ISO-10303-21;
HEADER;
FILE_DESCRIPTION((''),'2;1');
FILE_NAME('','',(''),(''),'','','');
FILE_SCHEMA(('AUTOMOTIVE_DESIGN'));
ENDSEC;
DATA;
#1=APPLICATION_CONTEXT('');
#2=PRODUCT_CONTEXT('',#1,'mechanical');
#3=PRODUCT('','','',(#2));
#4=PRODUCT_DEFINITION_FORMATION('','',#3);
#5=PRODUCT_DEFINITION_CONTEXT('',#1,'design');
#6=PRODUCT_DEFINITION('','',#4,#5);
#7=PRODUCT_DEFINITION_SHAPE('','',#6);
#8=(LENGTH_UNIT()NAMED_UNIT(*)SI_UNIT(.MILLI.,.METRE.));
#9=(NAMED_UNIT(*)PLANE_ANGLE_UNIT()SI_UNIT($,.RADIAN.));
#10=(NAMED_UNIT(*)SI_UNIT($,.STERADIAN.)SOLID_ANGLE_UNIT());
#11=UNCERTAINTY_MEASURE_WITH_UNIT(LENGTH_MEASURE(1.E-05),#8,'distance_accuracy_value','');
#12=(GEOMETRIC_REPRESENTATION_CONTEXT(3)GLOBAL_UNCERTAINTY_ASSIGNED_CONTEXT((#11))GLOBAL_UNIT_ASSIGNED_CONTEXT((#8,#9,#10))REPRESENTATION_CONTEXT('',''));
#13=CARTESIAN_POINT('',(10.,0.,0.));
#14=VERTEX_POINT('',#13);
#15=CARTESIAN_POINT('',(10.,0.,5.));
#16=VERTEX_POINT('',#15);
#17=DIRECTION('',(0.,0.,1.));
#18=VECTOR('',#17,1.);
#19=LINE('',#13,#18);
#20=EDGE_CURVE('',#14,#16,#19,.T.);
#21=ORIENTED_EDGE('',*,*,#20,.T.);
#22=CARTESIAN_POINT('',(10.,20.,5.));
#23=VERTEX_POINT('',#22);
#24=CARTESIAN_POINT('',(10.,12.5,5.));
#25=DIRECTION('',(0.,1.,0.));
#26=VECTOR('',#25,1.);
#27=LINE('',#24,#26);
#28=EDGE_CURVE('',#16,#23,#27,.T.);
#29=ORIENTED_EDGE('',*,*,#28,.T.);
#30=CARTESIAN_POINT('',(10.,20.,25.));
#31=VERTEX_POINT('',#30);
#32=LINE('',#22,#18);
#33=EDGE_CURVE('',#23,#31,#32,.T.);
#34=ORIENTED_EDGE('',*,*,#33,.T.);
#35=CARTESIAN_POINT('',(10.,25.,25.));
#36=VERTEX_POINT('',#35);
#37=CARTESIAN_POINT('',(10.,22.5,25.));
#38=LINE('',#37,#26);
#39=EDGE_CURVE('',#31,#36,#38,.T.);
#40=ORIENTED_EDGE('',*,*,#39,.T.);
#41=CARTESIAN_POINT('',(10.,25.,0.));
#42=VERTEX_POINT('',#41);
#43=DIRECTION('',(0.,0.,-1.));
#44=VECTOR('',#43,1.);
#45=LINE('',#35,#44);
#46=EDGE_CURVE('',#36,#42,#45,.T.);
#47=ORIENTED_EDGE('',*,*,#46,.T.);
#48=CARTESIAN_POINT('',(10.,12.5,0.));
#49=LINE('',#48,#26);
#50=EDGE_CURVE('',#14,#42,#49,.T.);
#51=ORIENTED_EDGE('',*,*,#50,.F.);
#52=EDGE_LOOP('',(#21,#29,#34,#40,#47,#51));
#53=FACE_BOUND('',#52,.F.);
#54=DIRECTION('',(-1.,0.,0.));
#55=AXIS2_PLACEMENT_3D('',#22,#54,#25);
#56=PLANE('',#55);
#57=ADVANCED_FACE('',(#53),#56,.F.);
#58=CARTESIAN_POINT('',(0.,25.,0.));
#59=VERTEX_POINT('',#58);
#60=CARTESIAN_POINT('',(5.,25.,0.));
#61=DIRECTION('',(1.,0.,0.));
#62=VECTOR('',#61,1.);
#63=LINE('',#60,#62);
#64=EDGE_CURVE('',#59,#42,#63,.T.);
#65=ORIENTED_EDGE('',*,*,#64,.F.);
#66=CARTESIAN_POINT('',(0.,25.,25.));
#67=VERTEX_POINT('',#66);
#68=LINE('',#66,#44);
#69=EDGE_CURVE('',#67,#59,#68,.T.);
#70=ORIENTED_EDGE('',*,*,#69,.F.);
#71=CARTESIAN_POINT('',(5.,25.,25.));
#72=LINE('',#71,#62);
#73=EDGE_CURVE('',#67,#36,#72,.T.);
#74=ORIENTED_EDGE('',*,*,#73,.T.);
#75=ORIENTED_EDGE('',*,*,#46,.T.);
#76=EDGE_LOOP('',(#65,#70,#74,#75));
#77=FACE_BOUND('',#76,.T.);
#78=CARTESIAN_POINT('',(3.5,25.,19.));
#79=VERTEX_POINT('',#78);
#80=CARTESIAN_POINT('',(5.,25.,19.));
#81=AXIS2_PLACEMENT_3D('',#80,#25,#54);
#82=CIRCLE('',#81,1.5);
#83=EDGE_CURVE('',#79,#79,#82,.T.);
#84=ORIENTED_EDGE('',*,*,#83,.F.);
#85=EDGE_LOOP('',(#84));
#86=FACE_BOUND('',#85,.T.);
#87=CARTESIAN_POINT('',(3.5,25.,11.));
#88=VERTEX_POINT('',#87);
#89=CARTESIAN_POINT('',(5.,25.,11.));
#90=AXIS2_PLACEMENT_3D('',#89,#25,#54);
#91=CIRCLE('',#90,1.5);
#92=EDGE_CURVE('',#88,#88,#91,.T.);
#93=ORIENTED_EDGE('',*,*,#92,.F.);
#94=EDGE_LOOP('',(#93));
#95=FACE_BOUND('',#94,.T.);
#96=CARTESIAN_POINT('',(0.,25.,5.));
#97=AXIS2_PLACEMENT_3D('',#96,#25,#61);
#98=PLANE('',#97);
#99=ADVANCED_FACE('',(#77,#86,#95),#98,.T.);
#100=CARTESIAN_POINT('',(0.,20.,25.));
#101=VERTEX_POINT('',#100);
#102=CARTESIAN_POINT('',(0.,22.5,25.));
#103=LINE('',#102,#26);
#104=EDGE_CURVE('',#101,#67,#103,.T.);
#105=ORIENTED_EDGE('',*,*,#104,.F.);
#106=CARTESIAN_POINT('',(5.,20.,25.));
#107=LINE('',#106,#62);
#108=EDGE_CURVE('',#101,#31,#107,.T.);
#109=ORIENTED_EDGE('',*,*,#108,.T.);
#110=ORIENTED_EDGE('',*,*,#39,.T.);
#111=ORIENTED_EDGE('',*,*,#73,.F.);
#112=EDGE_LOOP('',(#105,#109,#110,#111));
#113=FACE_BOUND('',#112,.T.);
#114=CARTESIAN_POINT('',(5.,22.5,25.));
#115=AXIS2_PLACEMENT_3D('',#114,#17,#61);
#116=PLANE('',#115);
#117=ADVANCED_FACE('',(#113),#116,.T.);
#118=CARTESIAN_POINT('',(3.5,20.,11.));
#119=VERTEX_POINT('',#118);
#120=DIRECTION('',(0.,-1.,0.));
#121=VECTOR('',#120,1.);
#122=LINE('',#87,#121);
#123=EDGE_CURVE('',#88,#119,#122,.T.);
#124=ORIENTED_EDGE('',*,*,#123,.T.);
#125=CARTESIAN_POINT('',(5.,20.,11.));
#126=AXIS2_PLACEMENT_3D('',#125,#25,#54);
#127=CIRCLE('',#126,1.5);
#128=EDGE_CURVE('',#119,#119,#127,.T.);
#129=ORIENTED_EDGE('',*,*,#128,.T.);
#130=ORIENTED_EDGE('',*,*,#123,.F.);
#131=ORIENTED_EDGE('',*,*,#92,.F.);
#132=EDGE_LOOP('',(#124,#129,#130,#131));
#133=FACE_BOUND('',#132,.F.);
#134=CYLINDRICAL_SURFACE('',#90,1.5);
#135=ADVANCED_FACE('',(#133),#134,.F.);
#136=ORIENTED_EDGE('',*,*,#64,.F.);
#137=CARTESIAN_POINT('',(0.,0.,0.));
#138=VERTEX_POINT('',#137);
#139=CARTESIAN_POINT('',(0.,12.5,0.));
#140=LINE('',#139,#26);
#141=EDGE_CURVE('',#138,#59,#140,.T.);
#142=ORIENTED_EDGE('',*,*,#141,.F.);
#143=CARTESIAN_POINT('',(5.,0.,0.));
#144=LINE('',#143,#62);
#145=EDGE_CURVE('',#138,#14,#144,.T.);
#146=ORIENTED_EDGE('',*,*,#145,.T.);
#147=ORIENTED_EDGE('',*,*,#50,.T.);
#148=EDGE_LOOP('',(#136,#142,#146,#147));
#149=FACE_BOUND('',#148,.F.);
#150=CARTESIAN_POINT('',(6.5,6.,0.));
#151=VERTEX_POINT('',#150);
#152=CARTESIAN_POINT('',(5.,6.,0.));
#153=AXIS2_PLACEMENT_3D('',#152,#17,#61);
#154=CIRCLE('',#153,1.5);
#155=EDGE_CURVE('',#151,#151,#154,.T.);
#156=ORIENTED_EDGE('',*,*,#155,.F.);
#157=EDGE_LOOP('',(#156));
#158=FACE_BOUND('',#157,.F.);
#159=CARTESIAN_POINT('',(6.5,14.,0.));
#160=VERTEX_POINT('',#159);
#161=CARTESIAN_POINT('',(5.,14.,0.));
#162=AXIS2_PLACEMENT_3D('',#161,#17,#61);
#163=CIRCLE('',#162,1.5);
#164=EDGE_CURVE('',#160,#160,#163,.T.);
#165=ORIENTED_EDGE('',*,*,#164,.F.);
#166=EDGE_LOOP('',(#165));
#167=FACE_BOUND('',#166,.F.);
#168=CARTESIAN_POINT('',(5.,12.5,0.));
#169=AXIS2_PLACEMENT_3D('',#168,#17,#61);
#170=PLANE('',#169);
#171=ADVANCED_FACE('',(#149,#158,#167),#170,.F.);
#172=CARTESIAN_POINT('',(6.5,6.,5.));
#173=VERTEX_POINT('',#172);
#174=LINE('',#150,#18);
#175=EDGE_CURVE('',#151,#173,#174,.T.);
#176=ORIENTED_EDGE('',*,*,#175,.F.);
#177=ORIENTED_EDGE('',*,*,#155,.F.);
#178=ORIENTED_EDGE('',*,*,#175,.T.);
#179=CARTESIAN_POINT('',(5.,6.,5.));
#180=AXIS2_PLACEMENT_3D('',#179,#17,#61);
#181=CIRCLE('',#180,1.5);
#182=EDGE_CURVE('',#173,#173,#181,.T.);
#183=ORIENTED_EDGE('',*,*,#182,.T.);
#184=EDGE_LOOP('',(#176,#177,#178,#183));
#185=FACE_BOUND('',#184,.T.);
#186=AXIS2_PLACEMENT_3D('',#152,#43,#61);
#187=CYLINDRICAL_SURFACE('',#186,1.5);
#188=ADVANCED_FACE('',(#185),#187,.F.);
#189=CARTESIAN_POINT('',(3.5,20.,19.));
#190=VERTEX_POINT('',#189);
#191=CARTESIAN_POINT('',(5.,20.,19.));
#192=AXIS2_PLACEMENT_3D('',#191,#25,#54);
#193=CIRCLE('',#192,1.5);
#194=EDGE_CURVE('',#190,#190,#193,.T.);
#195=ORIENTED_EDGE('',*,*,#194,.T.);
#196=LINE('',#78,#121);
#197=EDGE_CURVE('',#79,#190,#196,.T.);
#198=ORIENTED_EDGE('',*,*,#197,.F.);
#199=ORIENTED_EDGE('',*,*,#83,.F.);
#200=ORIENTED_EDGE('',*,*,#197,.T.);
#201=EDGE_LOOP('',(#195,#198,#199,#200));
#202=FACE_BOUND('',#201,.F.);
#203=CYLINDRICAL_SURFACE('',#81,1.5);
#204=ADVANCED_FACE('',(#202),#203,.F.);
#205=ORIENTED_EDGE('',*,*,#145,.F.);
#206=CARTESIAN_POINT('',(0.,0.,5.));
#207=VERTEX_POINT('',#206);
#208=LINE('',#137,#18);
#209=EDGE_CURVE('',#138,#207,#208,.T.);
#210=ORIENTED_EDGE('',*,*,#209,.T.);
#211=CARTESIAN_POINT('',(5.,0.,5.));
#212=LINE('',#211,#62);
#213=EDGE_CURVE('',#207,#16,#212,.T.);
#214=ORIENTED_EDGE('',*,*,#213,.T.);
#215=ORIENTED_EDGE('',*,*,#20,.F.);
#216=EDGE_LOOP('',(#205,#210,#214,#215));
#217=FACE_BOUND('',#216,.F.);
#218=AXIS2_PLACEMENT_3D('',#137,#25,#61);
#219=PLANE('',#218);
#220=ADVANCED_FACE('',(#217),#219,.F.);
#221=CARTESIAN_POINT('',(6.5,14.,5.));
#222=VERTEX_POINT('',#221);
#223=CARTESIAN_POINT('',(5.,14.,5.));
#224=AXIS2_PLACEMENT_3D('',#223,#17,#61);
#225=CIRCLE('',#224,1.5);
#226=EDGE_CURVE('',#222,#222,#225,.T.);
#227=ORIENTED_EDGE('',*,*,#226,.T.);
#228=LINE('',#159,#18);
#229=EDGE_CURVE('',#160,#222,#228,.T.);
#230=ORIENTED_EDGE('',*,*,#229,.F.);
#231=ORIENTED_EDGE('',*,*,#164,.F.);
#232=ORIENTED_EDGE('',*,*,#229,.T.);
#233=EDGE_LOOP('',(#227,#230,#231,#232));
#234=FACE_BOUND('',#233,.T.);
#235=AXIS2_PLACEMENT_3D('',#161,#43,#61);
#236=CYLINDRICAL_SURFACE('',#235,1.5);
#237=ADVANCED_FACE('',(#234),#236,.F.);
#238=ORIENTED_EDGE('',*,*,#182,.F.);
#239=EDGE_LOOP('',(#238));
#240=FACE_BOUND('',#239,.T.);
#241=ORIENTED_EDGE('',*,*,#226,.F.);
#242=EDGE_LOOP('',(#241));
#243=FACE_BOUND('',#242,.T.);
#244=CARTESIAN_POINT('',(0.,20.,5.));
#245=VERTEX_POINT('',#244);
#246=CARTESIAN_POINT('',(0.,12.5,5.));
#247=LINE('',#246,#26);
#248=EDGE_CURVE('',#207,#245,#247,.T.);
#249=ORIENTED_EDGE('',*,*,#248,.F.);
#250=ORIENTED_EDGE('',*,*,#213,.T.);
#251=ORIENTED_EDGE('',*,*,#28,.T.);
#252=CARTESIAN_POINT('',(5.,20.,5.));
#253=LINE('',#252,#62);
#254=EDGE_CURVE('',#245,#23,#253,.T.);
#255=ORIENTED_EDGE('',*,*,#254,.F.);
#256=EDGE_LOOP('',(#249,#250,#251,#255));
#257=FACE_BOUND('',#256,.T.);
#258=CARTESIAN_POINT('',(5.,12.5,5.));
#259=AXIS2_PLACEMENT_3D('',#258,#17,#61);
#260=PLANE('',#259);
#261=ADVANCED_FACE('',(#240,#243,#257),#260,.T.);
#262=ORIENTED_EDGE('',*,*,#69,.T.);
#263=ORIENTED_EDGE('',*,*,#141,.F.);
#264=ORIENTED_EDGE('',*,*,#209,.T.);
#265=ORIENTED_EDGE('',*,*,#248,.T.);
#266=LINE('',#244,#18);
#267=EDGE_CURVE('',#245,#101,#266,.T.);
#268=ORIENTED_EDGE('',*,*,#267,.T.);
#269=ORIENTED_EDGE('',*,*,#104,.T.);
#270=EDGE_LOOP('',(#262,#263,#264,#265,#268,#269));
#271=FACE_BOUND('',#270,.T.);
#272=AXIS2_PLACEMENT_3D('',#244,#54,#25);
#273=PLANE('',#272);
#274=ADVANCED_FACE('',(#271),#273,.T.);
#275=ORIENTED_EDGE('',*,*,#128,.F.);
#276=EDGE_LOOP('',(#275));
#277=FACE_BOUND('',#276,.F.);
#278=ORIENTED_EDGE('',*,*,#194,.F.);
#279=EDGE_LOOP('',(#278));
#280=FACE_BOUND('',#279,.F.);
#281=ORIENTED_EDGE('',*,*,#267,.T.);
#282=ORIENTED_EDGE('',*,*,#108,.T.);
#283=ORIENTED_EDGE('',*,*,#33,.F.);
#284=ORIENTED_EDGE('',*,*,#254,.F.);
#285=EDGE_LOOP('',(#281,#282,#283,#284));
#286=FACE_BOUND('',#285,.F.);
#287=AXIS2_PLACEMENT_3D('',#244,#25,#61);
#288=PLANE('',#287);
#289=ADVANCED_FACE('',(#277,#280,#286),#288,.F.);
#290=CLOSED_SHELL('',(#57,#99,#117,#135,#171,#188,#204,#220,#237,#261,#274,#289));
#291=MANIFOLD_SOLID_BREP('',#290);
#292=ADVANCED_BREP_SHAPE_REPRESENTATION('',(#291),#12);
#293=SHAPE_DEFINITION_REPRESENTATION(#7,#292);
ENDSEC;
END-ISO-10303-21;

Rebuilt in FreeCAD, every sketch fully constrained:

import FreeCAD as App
import Part
import Sketcher

V = App.Vector
Q = App.Units.Quantity

doc = App.newDocument("Part")
params = doc.addObject("Spreadsheet::Sheet", "Params")
for row, (alias, value) in enumerate([
    ("sketch1_diameter", "3 mm"),
    ("sketch1_width", "10 mm"),
    ("sketch1_height", "25 mm"),
    ("pad1_length", "5 mm"),
    ("sketch2_width", "10 mm"),
    ("sketch2_height", "5 mm"),
    ("pad2_length", "20 mm"),
    ("sketch3_diameter", "3 mm"),
], start=1):
    params.set(f"A{row}", alias)
    params.set(f"B{row}", "=" + value)
    params.setAlias(f"B{row}", alias)

body = doc.addObject("PartDesign::Body", "Body")

# Sketch on XY plane
sketch1 = body.newObject("Sketcher::SketchObject", "Sketch")
sketch1.AttachmentSupport = (doc.getObject("XY_Plane"), [""])
sketch1.MapMode = "FlatFace"
sketch1.addGeometry(Part.LineSegment(V(0, 25, 0), V(0, 0, 0)), False)
sketch1.addGeometry(Part.LineSegment(V(0, 0, 0), V(10, 0, 0)), False)
sketch1.addGeometry(Part.LineSegment(V(10, 0, 0), V(10, 25, 0)), False)
sketch1.addGeometry(Part.LineSegment(V(10, 25, 0), V(0, 25, 0)), False)
sketch1.addGeometry(Part.Circle(V(5, 6, 0), V(0, 0, 1), 1.5), False)
sketch1.addGeometry(Part.Circle(V(5, 14, 0), V(0, 0, 1), 1.5), False)
sketch1.addConstraint(Sketcher.Constraint("Coincident", 0, 2, 1, 1))
sketch1.addConstraint(Sketcher.Constraint("Coincident", 1, 2, 2, 1))
sketch1.addConstraint(Sketcher.Constraint("Coincident", 2, 2, 3, 1))
sketch1.addConstraint(Sketcher.Constraint("Coincident", 3, 2, 0, 1))
sketch1.addConstraint(Sketcher.Constraint("Vertical", 0))
sketch1.addConstraint(Sketcher.Constraint("Horizontal", 1))
sketch1.addConstraint(Sketcher.Constraint("Vertical", 2))
sketch1.addConstraint(Sketcher.Constraint("Horizontal", 3))
sketch1.addConstraint(Sketcher.Constraint("Coincident", 0, 2, -1, 1))
sketch1.addConstraint(Sketcher.Constraint("Equal", 4, 5))
sketch1.addConstraint(Sketcher.Constraint("Vertical", 4, 3, 5, 3))
sketch1.addConstraint(Sketcher.Constraint("Diameter", 4, Q("3 mm")))
sketch1.addConstraint(Sketcher.Constraint("DistanceX", 1, 1, 1, 2, Q("10 mm")))
sketch1.addConstraint(Sketcher.Constraint("DistanceY", 0, 2, 0, 1, Q("25 mm")))
sketch1.addConstraint(Sketcher.Constraint("DistanceX", -1, 1, 4, 3, Q("5 mm")))
sketch1.addConstraint(Sketcher.Constraint("DistanceY", -1, 1, 4, 3, Q("6 mm")))
sketch1.addConstraint(Sketcher.Constraint("DistanceY", -1, 1, 5, 3, Q("14 mm")))
sketch1.setExpression("Constraints[11]", "Params.sketch1_diameter")
sketch1.setExpression("Constraints[12]", "Params.sketch1_width")
sketch1.setExpression("Constraints[13]", "Params.sketch1_height")
pad1 = body.newObject("PartDesign::Pad", "Pad")
pad1.Profile = sketch1
pad1.setExpression("Length", "Params.pad1_length")

# Sketch on XY plane
sketch2 = body.newObject("Sketcher::SketchObject", "Sketch001")
sketch2.AttachmentSupport = (doc.getObject("XY_Plane"), [""])
sketch2.MapMode = "FlatFace"
sketch2.AttachmentOffset = App.Placement(V(0, 0, 5), App.Rotation())
sketch2.addGeometry(Part.LineSegment(V(0, 25, 0), V(0, 20, 0)), False)
sketch2.addGeometry(Part.LineSegment(V(0, 20, 0), V(10, 20, 0)), False)
sketch2.addGeometry(Part.LineSegment(V(10, 20, 0), V(10, 25, 0)), False)
sketch2.addGeometry(Part.LineSegment(V(10, 25, 0), V(0, 25, 0)), False)
sketch2.addConstraint(Sketcher.Constraint("Coincident", 0, 2, 1, 1))
sketch2.addConstraint(Sketcher.Constraint("Coincident", 1, 2, 2, 1))
sketch2.addConstraint(Sketcher.Constraint("Coincident", 2, 2, 3, 1))
sketch2.addConstraint(Sketcher.Constraint("Coincident", 3, 2, 0, 1))
sketch2.addConstraint(Sketcher.Constraint("Vertical", 0))
sketch2.addConstraint(Sketcher.Constraint("Horizontal", 1))
sketch2.addConstraint(Sketcher.Constraint("Vertical", 2))
sketch2.addConstraint(Sketcher.Constraint("Horizontal", 3))
sketch2.addConstraint(Sketcher.Constraint("PointOnObject", 0, 2, -2))
sketch2.addConstraint(Sketcher.Constraint("DistanceX", 1, 1, 1, 2, Q("10 mm")))
sketch2.addConstraint(Sketcher.Constraint("DistanceY", 0, 2, 0, 1, Q("5 mm")))
sketch2.addConstraint(Sketcher.Constraint("DistanceY", -1, 1, 0, 2, Q("20 mm")))
sketch2.setExpression("Constraints[9]", "Params.sketch2_width")
sketch2.setExpression("Constraints[10]", "Params.sketch2_height")
pad2 = body.newObject("PartDesign::Pad", "Pad001")
pad2.Profile = sketch2
pad2.setExpression("Length", "Params.pad2_length")

# Sketch on XZ plane
sketch3 = body.newObject("Sketcher::SketchObject", "Sketch002")
sketch3.AttachmentSupport = (doc.getObject("XZ_Plane"), [""])
sketch3.MapMode = "FlatFace"
sketch3.AttachmentOffset = App.Placement(V(0, 0, -25), App.Rotation())
sketch3.addGeometry(Part.Circle(V(5, 19, 0), V(0, 0, 1), 1.5), False)
sketch3.addGeometry(Part.Circle(V(5, 11, 0), V(0, 0, 1), 1.5), False)
sketch3.addConstraint(Sketcher.Constraint("Equal", 0, 1))
sketch3.addConstraint(Sketcher.Constraint("Vertical", 0, 3, 1, 3))
sketch3.addConstraint(Sketcher.Constraint("Diameter", 0, Q("3 mm")))
sketch3.addConstraint(Sketcher.Constraint("DistanceX", -1, 1, 0, 3, Q("5 mm")))
sketch3.addConstraint(Sketcher.Constraint("DistanceY", -1, 1, 0, 3, Q("19 mm")))
sketch3.addConstraint(Sketcher.Constraint("DistanceY", -1, 1, 1, 3, Q("11 mm")))
sketch3.setExpression("Constraints[2]", "Params.sketch3_diameter")
pocket1 = body.newObject("PartDesign::Pocket", "Pocket")
pocket1.Profile = sketch3
pocket1.Type = "ThroughAll"
pocket1.Reversed = True

doc.recompute()
